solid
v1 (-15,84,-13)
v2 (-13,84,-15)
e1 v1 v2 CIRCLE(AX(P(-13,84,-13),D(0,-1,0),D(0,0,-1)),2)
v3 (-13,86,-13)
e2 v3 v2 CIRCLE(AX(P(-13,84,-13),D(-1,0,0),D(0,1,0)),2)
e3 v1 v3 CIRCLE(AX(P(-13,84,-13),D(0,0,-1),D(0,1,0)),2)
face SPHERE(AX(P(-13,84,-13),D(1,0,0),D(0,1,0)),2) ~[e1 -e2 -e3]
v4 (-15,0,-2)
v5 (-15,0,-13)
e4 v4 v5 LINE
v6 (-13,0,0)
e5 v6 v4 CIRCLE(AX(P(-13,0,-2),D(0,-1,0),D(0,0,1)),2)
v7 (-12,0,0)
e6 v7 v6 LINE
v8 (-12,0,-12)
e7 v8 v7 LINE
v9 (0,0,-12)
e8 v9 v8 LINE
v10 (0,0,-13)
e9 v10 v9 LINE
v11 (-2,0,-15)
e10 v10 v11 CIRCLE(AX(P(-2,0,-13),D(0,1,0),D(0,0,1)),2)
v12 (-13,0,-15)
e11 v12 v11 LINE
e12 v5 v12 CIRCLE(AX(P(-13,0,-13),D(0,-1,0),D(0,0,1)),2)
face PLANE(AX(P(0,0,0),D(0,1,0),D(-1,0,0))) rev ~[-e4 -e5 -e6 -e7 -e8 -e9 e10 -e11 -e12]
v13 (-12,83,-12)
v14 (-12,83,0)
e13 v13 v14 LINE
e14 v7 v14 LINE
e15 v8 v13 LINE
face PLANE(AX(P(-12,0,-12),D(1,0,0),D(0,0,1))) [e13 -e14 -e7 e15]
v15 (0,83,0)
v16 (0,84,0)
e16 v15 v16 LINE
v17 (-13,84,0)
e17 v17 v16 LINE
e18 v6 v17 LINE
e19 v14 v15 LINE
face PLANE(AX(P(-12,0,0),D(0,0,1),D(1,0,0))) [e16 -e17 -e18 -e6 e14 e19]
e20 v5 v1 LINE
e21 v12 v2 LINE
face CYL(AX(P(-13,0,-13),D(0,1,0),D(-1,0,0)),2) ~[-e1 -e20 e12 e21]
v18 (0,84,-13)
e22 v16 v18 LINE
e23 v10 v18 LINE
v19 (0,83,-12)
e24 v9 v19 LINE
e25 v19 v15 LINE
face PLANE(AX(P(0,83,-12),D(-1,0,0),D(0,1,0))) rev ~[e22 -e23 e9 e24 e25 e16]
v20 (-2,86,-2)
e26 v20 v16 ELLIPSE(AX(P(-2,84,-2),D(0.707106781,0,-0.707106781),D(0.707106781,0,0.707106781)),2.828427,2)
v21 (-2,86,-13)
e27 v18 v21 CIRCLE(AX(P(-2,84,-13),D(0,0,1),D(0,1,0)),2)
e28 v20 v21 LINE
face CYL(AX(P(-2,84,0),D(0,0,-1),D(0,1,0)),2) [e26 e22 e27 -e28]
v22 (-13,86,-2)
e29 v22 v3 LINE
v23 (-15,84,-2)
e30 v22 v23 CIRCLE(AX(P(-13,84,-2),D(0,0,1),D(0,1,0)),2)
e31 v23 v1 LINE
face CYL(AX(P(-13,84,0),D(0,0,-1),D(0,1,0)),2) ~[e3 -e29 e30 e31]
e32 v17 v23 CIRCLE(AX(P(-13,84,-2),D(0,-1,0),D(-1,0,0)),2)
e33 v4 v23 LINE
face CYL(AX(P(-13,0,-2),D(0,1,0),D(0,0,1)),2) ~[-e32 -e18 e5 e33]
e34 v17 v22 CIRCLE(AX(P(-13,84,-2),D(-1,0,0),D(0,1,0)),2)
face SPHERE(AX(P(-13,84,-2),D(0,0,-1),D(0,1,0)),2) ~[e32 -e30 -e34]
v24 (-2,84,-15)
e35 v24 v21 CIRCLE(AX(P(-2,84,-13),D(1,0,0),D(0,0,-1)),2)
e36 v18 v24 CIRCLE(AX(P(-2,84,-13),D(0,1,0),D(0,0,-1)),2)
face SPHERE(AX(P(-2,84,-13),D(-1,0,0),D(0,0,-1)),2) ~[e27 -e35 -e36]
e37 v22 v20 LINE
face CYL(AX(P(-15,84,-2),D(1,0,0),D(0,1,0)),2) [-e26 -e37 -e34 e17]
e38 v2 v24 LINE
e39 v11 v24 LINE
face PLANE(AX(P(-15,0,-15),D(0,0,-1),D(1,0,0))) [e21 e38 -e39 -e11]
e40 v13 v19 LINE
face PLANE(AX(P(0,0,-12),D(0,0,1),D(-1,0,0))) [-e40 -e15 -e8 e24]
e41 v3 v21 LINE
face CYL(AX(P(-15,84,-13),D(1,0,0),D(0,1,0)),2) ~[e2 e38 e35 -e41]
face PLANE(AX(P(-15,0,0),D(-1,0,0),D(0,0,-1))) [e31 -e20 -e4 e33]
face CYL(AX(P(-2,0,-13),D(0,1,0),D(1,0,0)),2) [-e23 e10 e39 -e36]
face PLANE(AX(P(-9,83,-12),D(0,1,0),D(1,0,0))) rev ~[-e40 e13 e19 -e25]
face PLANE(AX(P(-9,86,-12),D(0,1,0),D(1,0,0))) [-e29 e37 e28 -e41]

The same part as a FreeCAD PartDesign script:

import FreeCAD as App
import Part
import Sketcher
from FreeCAD import Vector
Q = App.Units.Quantity


def edges_at(feature, points):
    """Names of the edges that pass closest to the given points."""
    edges = feature.Shape.Edges
    near = lambda p: min(range(len(edges)), key=lambda i: edges[i].distToShape(Part.Vertex(*p))[0])
    return sorted({f"Edge{near(p) + 1}" for p in points})

doc = App.newDocument("Part")
body = doc.addObject("PartDesign::Body", "Body")

# Sketch on XZ plane
sketch1 = body.newObject("Sketcher::SketchObject", "Sketch")
sketch1.AttachmentSupport = (doc.getObject("XZ_Plane"), [""])
sketch1.MapMode = "FlatFace"
sketch1.addGeometry([
    Part.LineSegment(Vector(-15, -15, 0), Vector(-15, 0, 0)),  # 0
    Part.LineSegment(Vector(-15, 0, 0), Vector(-12, 0, 0)),  # 1
    Part.LineSegment(Vector(-12, 0, 0), Vector(-12, -12, 0)),  # 2
    Part.LineSegment(Vector(-12, -12, 0), Vector(0, -12, 0)),  # 3
    Part.LineSegment(Vector(0, -12, 0), Vector(0, -15, 0)),  # 4
    Part.LineSegment(Vector(0, -15, 0), Vector(-15, -15, 0)),  # 5
], False)
sketch1.addConstraint([
    Sketcher.Constraint("Coincident", 0, 2, 1, 1),
    Sketcher.Constraint("Coincident", 1, 2, 2, 1),
    Sketcher.Constraint("Coincident", 2, 2, 3, 1),
    Sketcher.Constraint("Coincident", 3, 2, 4, 1),
    Sketcher.Constraint("Coincident", 4, 2, 5, 1),
    Sketcher.Constraint("Coincident", 5, 2, 0, 1),
    Sketcher.Constraint("Vertical", 0),
    Sketcher.Constraint("Horizontal", 1),
    Sketcher.Constraint("Vertical", 2),
    Sketcher.Constraint("Horizontal", 3),
    Sketcher.Constraint("Vertical", 4),
    Sketcher.Constraint("Horizontal", 5),
    Sketcher.Constraint("PointOnObject", 0, 2, -1),
    Sketcher.Constraint("PointOnObject", 3, 2, -2),
    Sketcher.Constraint("Equal", 5, 0),
    Sketcher.Constraint("Equal", 3, 2),
    Sketcher.Constraint("DistanceX", 1, 1, 1, 2, Q("3 mm")),
    Sketcher.Constraint("DistanceX", 3, 1, 3, 2, Q("12 mm")),
])
pad1 = body.newObject("PartDesign::Pad", "Pad")
pad1.Profile = sketch1
pad1.Length = 86
pad1.Reversed = True

# Sketch on YZ plane
sketch2 = body.newObject("Sketcher::SketchObject", "Sketch001")
sketch2.AttachmentSupport = (doc.getObject("YZ_Plane"), [""])
sketch2.MapMode = "FlatFace"
sketch2.AttachmentOffset = App.Placement(Vector(0, 0, -12), App.Rotation())
sketch2.addGeometry([
    Part.LineSegment(Vector(86, 0, 0), Vector(83, 0, 0)),
    Part.LineSegment(Vector(83, 0, 0), Vector(83, -12, 0)),
    Part.LineSegment(Vector(83, -12, 0), Vector(86, -12, 0)),
    Part.LineSegment(Vector(86, -12, 0), Vector(86, 0, 0)),
], False)
sketch2.addConstraint([
    Sketcher.Constraint("Coincident", 0, 2, 1, 1),
    Sketcher.Constraint("Coincident", 1, 2, 2, 1),
    Sketcher.Constraint("Coincident", 2, 2, 3, 1),
    Sketcher.Constraint("Coincident", 3, 2, 0, 1),
    Sketcher.Constraint("Horizontal", 0),
    Sketcher.Constraint("Vertical", 1),
    Sketcher.Constraint("Horizontal", 2),
    Sketcher.Constraint("Vertical", 3),
    Sketcher.Constraint("PointOnObject", 0, 2, -1),
    Sketcher.Constraint("DistanceX", 0, 2, 0, 1, Q("3 mm")),
    Sketcher.Constraint("DistanceY", 1, 2, 1, 1, Q("12 mm")),
    Sketcher.Constraint("DistanceX", -1, 1, 0, 2, Q("83 mm")),
])
pad2 = body.newObject("PartDesign::Pad", "Pad001")
pad2.Profile = sketch2
pad2.Length = 3

# Sketch on XY plane
sketch3 = body.newObject("Sketcher::SketchObject", "Sketch002")
sketch3.AttachmentSupport = (doc.getObject("XY_Plane"), [""])
sketch3.MapMode = "FlatFace"
sketch3.AttachmentOffset = App.Placement(Vector(0, 0, -12), App.Rotation())
sketch3.addGeometry([
    Part.LineSegment(Vector(0, 86, 0), Vector(-9, 86, 0)),
    Part.LineSegment(Vector(-9, 86, 0), Vector(-9, 83, 0)),
    Part.LineSegment(Vector(-9, 83, 0), Vector(0, 83, 0)),
    Part.LineSegment(Vector(0, 83, 0), Vector(0, 86, 0)),
], False)
sketch3.addConstraint([
    Sketcher.Constraint("Coincident", 0, 2, 1, 1),
    Sketcher.Constraint("Coincident", 1, 2, 2, 1),
    Sketcher.Constraint("Coincident", 2, 2, 3, 1),
    Sketcher.Constraint("Coincident", 3, 2, 0, 1),
    Sketcher.Constraint("Horizontal", 0),
    Sketcher.Constraint("Vertical", 1),
    Sketcher.Constraint("Horizontal", 2),
    Sketcher.Constraint("Vertical", 3),
    Sketcher.Constraint("PointOnObject", 2, 2, -2),
    Sketcher.Constraint("DistanceX", 0, 2, 0, 1, Q("9 mm")),
    Sketcher.Constraint("DistanceY", 1, 2, 1, 1, Q("3 mm")),
    Sketcher.Constraint("DistanceY", -1, 1, 0, 2, Q("86 mm")),
])
pad3 = body.newObject("PartDesign::Pad", "Pad002")
pad3.Profile = sketch3
pad3.Length = 12
doc.recompute()

fillet = body.newObject("PartDesign::Fillet", "Fillet")
fillet.Base = (pad3, edges_at(pad3, [
    (-7.5, 86, -15),
    (-15, 86, -7.5),
    (-15, 43, -15),
    (0, 43, -15),
    (-7.5, 86, 0),
    (0, 86, -7.5),
    (-15, 43, 0),
]))
fillet.Radius = 2

doc.recompute()
